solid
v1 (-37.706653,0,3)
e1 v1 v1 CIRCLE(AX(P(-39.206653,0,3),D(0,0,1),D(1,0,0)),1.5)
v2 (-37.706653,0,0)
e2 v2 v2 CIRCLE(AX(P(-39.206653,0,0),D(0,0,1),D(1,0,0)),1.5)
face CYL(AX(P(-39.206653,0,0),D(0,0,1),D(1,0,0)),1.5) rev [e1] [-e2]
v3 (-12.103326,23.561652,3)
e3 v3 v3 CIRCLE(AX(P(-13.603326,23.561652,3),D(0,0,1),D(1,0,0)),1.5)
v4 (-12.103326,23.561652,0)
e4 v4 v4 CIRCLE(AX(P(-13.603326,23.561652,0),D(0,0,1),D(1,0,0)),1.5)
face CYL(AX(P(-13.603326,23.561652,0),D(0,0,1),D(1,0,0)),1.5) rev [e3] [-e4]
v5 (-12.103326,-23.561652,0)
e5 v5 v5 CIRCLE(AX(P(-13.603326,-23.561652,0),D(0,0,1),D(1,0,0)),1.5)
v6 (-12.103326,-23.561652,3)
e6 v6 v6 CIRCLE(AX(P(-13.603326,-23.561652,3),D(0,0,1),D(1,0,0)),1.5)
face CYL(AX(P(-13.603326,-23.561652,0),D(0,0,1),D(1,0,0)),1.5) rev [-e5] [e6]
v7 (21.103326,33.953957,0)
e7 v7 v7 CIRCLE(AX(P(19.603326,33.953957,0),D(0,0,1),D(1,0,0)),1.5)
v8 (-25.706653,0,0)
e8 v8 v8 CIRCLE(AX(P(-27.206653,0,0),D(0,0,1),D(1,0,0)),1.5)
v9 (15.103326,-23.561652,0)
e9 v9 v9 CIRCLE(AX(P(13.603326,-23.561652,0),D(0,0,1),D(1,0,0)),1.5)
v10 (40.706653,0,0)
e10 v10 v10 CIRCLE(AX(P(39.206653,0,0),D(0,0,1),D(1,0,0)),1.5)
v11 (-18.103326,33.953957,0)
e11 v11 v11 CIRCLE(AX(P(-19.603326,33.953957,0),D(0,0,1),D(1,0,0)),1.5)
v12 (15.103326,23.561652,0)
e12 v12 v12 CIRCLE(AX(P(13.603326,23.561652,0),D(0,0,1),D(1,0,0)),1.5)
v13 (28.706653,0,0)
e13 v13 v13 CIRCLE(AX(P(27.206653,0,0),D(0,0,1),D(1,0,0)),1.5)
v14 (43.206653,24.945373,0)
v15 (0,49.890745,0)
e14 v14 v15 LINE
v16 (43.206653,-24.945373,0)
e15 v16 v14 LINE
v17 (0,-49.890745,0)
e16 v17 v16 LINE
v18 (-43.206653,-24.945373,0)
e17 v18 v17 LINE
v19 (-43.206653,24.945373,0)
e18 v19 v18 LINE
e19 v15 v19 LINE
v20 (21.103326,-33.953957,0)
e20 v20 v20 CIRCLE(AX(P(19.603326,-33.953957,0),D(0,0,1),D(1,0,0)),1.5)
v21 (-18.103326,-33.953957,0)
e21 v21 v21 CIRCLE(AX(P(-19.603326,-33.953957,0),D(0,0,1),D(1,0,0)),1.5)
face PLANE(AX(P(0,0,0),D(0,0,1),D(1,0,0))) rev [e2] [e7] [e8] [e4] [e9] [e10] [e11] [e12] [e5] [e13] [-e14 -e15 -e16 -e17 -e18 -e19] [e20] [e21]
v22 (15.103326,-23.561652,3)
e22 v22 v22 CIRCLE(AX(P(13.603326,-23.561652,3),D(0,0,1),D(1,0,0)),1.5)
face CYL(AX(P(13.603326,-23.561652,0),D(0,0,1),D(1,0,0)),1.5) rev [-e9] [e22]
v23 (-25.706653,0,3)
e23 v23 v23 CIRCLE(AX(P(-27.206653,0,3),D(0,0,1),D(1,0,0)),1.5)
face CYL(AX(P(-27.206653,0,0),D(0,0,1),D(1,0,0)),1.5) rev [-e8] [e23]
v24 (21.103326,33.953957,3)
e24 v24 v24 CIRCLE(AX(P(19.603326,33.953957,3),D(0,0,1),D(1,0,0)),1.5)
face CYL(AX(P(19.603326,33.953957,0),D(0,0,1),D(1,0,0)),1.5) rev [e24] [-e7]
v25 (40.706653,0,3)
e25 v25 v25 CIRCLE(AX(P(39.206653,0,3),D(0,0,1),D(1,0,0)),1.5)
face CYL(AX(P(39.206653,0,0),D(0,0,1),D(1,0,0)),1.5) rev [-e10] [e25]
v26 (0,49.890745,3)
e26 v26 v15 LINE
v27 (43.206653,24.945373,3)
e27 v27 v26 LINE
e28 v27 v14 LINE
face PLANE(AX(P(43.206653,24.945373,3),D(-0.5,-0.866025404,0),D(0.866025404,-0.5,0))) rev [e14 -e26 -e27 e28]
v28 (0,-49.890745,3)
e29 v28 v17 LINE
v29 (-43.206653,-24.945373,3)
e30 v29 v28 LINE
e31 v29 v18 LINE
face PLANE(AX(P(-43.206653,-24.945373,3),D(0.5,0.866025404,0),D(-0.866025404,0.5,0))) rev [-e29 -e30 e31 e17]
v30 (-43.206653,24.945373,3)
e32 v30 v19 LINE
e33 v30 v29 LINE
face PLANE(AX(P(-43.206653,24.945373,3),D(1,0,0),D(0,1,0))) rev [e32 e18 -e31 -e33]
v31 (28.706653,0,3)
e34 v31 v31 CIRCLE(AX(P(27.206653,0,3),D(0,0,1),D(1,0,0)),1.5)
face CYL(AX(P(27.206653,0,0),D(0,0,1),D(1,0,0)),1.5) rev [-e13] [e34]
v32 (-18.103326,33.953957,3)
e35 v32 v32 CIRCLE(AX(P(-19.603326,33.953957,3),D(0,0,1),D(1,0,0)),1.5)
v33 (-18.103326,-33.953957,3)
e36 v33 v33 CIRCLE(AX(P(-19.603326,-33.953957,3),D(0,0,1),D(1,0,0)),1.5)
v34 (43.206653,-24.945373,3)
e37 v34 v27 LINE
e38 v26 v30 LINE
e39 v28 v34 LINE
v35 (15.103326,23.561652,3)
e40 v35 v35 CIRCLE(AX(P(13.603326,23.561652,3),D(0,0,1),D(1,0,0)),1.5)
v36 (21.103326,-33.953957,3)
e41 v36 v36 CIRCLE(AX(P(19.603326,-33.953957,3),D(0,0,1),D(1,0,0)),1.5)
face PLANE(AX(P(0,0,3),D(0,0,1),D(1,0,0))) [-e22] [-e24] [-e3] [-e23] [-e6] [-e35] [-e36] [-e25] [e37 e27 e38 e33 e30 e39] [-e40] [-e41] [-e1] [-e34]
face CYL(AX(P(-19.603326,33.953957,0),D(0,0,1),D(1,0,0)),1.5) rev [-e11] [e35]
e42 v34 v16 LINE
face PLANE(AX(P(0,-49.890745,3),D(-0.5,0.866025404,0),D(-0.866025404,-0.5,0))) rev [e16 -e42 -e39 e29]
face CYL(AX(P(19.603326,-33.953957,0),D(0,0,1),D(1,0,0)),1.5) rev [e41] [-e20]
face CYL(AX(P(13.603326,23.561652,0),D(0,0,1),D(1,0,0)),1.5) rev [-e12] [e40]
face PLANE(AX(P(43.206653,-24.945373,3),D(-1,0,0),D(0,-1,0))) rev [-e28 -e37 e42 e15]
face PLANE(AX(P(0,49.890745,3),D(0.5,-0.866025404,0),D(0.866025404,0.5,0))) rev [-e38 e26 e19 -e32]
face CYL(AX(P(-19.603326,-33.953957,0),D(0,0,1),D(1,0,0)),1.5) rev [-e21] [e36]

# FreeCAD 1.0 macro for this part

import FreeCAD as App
import Part
import Sketcher
from FreeCAD import Vector
Q = App.Units.Quantity

doc = App.newDocument("Part")
params = doc.addObject("Spreadsheet::Sheet", "Params")
for row, (alias, value) in enumerate([
    ("pad1_length", "3 mm"),
    ("sketch2_diameter", "3 mm"),
    ("pocket1_length", "3 mm"),
], start=1):
    params.set(f"A{row}", alias)
    params.set(f"B{row}", "=" + value)
    params.setAlias(f"B{row}", alias)

body = doc.addObject("PartDesign::Body", "Body")

# Sketch on XY plane
sketch1 = body.newObject("Sketcher::SketchObject", "Sketch")
sketch1.AttachmentSupport = (doc.getObject("XY_Plane"), [""])
sketch1.MapMode = "FlatFace"
sketch1.addGeometry(Part.LineSegment(Vector(0, -50, 0), Vector(43, -25, 0)), False)
sketch1.addGeometry(Part.LineSegment(Vector(43, -25, 0), Vector(43, 25, 0)), False)
sketch1.addGeometry(Part.LineSegment(Vector(43, 25, 0), Vector(0, 50, 0)), False)
sketch1.addGeometry(Part.LineSegment(Vector(0, 50, 0), Vector(-43, 25, 0)), False)
sketch1.addGeometry(Part.LineSegment(Vector(-43, 25, 0), Vector(-43, -25, 0)), False)
sketch1.addGeometry(Part.LineSegment(Vector(-43, -25, 0), Vector(0, -50, 0)), False)
sketch1.addConstraint(Sketcher.Constraint("Coincident", 0, 2, 1, 1))
sketch1.addConstraint(Sketcher.Constraint("Coincident", 1, 2, 2, 1))
sketch1.addConstraint(Sketcher.Constraint("Coincident", 2, 2, 3, 1))
sketch1.addConstraint(Sketcher.Constraint("Coincident", 3, 2, 4, 1))
sketch1.addConstraint(Sketcher.Constraint("Coincident", 4, 2, 5, 1))
sketch1.addConstraint(Sketcher.Constraint("Coincident", 5, 2, 0, 1))
sketch1.addConstraint(Sketcher.Constraint("Vertical", 1))
sketch1.addConstraint(Sketcher.Constraint("Vertical", 4))
sketch1.addConstraint(Sketcher.Constraint("Symmetric", 0, 2, 3, 2, -1, 1))
sketch1.addConstraint(Sketcher.Constraint("Symmetric", 2, 2, 5, 2, -1, 1))
sketch1.addConstraint(Sketcher.Constraint("PointOnObject", 2, 2, -2))
sketch1.addConstraint(Sketcher.Constraint("Parallel", 2, 5))
sketch1.addConstraint(Sketcher.Constraint("Horizontal", 1, 2, 3, 2))
sketch1.addConstraint(Sketcher.Constraint("Angle", 0, Q("30 deg")))
sketch1.addConstraint(Sketcher.Constraint("DistanceY", 1, 1, 1, 2, 49.890745))
sketch1.addConstraint(Sketcher.Constraint("DistanceY", 5, 2, 2, 2, 99.78149))
pad1 = body.newObject("PartDesign::Pad", "Pad")
pad1.Profile = sketch1
pad1.setExpression("Length", "Params.pad1_length")

# Sketch on XY plane
sketch2 = body.newObject("Sketcher::SketchObject", "Sketch001")
sketch2.AttachmentSupport = (doc.getObject("XY_Plane"), [""])
sketch2.MapMode = "FlatFace"
sketch2.AttachmentOffset = App.Placement(Vector(0, 0, 3), App.Rotation())
sketch2.addGeometry(Part.Circle(Vector(27.2, 0, 0), Vector(0, 0, 1), 1.5), False)
sketch2.addGeometry(Part.Circle(Vector(39.2, 0, 0), Vector(0, 0, 1), 1.5), False)
sketch2.addGeometry(Part.Circle(Vector(13.6, -23.6, 0), Vector(0, 0, 1), 1.5), False)
sketch2.addGeometry(Part.Circle(Vector(19.6, -34, 0), Vector(0, 0, 1), 1.5), False)
sketch2.addGeometry(Part.Circle(Vector(-13.6, -23.6, 0), Vector(0, 0, 1), 1.5), False)
sketch2.addGeometry(Part.Circle(Vector(-19.6, -34, 0), Vector(0, 0, 1), 1.5), False)
sketch2.addGeometry(Part.Circle(Vector(-27.2, 0, 0), Vector(0, 0, 1), 1.5), False)
sketch2.addGeometry(Part.Circle(Vector(-39.2, 0, 0), Vector(0, 0, 1), 1.5), False)
sketch2.addGeometry(Part.Circle(Vector(-13.6, 23.6, 0), Vector(0, 0, 1), 1.5), False)
sketch2.addGeometry(Part.Circle(Vector(-19.6, 34, 0), Vector(0, 0, 1), 1.5), False)
sketch2.addGeometry(Part.Circle(Vector(13.6, 23.6, 0), Vector(0, 0, 1), 1.5), False)
sketch2.addGeometry(Part.Circle(Vector(19.6, 34, 0), Vector(0, 0, 1), 1.5), False)
sketch2.addConstraint(Sketcher.Constraint("Equal", 0, 1))
sketch2.addConstraint(Sketcher.Constraint("Equal", 1, 2))
sketch2.addConstraint(Sketcher.Constraint("Equal", 2, 3))
sketch2.addConstraint(Sketcher.Constraint("Equal", 3, 4))
sketch2.addConstraint(Sketcher.Constraint("Equal", 4, 5))
sketch2.addConstraint(Sketcher.Constraint("Equal", 5, 6))
sketch2.addConstraint(Sketcher.Constraint("Equal", 6, 7))
sketch2.addConstraint(Sketcher.Constraint("Equal", 7, 8))
sketch2.addConstraint(Sketcher.Constraint("Equal", 8, 9))
sketch2.addConstraint(Sketcher.Constraint("Equal", 9, 10))
sketch2.addConstraint(Sketcher.Constraint("Equal", 10, 11))
sketch2.addConstraint(Sketcher.Constraint("Symmetric", 0, 3, 6, 3, -1, 1))
sketch2.addConstraint(Sketcher.Constraint("Symmetric", 1, 3, 7, 3, -1, 1))
sketch2.addConstraint(Sketcher.Constraint("Symmetric", 2, 3, 8, 3, -1, 1))
sketch2.addConstraint(Sketcher.Constraint("Symmetric", 3, 3, 9, 3, -1, 1))
sketch2.addConstraint(Sketcher.Constraint("Symmetric", 4, 3, 10, 3, -1, 1))
sketch2.addConstraint(Sketcher.Constraint("Symmetric", 5, 3, 11, 3, -1, 1))
sketch2.addConstraint(Sketcher.Constraint("Symmetric", 2, 3, 4, 3, -2))
sketch2.addConstraint(Sketcher.Constraint("Symmetric", 3, 3, 5, 3, -2))
sketch2.addConstraint(Sketcher.Constraint("PointOnObject", 0, 3, -1))
sketch2.addConstraint(Sketcher.Constraint("PointOnObject", 1, 3, -1))
sketch2.addConstraint(Sketcher.Constraint("Diameter", 0, 3.0))
sketch2.addConstraint(Sketcher.Constraint("DistanceX", 0, 3, 1, 3, 12.0))
sketch2.addConstraint(Sketcher.Constraint("DistanceX", 2, 3, 3, 3, 6.0))
sketch2.addConstraint(Sketcher.Constraint("DistanceX", 4, 3, 0, 3, 40.809979))
sketch2.addConstraint(Sketcher.Constraint("DistanceY", 4, 3, 9, 3, 57.51561))
sketch2.addConstraint(Sketcher.Constraint("DistanceX", -1, 1, 0, 3, 27.206653))
sketch2.addConstraint(Sketcher.Constraint("DistanceY", 2, 3, -1, 1, 23.561652))
sketch2.setExpression("Constraints[21]", "Params.sketch2_diameter")
pocket1 = body.newObject("PartDesign::Pocket", "Pocket")
pocket1.Profile = sketch2
pocket1.setExpression("Length", "Params.pocket1_length")

doc.recompute()
